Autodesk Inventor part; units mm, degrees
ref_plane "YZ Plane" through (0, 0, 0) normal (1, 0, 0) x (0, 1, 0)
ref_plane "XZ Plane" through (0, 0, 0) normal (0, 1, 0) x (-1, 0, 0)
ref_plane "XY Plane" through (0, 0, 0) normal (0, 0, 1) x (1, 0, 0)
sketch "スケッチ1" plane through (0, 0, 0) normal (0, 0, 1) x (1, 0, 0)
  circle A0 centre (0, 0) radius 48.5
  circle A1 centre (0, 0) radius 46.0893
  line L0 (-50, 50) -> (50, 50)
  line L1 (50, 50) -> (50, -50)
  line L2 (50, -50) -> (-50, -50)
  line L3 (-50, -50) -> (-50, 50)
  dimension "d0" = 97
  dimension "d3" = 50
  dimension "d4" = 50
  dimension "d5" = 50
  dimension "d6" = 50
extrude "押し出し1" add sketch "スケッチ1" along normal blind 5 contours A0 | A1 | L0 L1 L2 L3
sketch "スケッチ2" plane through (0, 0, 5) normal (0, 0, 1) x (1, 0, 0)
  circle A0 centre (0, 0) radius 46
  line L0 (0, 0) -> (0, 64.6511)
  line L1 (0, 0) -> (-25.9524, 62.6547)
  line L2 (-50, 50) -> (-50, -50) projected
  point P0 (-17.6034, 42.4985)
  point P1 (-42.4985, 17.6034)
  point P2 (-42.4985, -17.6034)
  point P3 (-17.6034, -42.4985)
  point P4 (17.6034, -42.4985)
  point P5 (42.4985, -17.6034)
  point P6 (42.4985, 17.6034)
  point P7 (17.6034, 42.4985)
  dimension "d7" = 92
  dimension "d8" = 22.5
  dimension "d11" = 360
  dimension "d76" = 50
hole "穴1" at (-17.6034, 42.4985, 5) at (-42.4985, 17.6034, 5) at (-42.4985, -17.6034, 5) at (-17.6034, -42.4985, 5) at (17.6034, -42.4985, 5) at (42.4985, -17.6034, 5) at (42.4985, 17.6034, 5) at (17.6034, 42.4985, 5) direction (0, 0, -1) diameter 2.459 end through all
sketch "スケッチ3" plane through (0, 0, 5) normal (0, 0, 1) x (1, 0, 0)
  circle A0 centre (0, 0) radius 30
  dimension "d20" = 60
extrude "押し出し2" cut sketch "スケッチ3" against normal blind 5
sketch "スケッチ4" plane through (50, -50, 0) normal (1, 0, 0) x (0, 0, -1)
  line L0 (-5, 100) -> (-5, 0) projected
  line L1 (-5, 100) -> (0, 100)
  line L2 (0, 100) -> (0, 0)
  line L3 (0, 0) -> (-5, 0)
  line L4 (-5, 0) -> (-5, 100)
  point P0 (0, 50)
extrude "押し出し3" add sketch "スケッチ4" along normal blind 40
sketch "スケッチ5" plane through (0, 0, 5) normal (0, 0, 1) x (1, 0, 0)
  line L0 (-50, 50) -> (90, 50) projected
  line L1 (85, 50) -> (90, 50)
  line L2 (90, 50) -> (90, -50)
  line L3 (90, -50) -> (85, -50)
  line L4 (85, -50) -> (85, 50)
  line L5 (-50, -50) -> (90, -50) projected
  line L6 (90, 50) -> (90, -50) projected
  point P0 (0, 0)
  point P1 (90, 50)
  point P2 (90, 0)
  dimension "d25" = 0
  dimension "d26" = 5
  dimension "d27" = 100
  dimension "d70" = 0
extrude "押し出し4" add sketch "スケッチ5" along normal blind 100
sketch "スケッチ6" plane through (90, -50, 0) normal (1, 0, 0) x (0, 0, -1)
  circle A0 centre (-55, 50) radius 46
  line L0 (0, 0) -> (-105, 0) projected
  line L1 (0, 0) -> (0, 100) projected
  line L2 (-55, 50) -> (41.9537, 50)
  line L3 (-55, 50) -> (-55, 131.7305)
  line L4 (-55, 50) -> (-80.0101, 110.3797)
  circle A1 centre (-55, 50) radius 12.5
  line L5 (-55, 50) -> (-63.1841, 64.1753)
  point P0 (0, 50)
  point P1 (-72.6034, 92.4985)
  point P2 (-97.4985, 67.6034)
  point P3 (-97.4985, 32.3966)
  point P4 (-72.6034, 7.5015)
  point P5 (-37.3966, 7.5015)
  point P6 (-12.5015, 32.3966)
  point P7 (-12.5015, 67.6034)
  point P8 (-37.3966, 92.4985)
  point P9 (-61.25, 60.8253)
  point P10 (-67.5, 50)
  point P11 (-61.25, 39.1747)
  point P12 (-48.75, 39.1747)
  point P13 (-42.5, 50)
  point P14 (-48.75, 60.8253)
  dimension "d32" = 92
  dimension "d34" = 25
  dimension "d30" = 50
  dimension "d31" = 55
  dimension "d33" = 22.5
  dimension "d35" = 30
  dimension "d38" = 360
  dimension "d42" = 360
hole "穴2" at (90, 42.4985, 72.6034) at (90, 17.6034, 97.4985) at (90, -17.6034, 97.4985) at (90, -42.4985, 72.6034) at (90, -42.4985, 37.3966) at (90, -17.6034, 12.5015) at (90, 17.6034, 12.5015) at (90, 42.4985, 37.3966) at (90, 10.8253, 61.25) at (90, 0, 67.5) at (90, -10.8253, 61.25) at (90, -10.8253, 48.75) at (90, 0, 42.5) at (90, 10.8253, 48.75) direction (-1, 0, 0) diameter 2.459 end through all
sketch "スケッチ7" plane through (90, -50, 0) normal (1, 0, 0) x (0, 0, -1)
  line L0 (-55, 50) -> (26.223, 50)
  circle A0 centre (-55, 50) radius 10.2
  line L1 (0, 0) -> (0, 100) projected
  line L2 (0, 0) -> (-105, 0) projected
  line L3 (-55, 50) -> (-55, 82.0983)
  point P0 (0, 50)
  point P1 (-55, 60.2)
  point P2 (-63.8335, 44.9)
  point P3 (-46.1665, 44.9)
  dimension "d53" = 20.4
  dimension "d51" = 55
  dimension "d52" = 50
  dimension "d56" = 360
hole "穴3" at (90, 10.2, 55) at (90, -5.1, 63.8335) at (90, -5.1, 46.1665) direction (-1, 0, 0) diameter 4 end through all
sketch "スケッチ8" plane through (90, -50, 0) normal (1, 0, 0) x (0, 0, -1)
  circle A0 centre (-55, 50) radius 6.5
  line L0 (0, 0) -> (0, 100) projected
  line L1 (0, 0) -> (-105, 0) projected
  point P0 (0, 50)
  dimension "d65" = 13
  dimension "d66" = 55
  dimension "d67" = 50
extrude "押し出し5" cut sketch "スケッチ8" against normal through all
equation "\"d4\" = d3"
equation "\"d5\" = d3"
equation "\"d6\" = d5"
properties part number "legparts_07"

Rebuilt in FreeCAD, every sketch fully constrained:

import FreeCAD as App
import Part
import Sketcher

V = App.Vector
Q = App.Units.Quantity

doc = App.newDocument("Part")
body = doc.addObject("PartDesign::Body", "Body")

sketch1 = body.newObject("Sketcher::SketchObject", "Sketch")
sketch1.AttachmentSupport = (doc.getObject("XY_Plane"), [""])
sketch1.MapMode = "FlatFace"
sketch1.addGeometry(Part.LineSegment(V(50, 50, 0), V(-50, 50, 0)), False)
sketch1.addGeometry(Part.LineSegment(V(-50, 50, 0), V(-50, -50, 0)), False)
sketch1.addGeometry(Part.LineSegment(V(-50, -50, 0), V(50, -50, 0)), False)
sketch1.addGeometry(Part.LineSegment(V(50, -50, 0), V(50, 50, 0)), False)
sketch1.addConstraint(Sketcher.Constraint("Coincident", 0, 2, 1, 1))
sketch1.addConstraint(Sketcher.Constraint("Coincident", 1, 2, 2, 1))
sketch1.addConstraint(Sketcher.Constraint("Coincident", 2, 2, 3, 1))
sketch1.addConstraint(Sketcher.Constraint("Coincident", 3, 2, 0, 1))
sketch1.addConstraint(Sketcher.Constraint("Horizontal", 0))
sketch1.addConstraint(Sketcher.Constraint("Vertical", 1))
sketch1.addConstraint(Sketcher.Constraint("Horizontal", 2))
sketch1.addConstraint(Sketcher.Constraint("Vertical", 3))
sketch1.addConstraint(Sketcher.Constraint("Symmetric", 0, 2, 2, 2, -1, 1))
sketch1.addConstraint(Sketcher.Constraint("Equal", 2, 1))
sketch1.addConstraint(Sketcher.Constraint("DistanceX", 0, 2, -1, 1, Q("50 mm")))
pad1 = body.newObject("PartDesign::Pad", "Pad")
pad1.Profile = sketch1
pad1.Length = 5

sketch2 = body.newObject("Sketcher::SketchObject", "Sketch001")
sketch2.AttachmentSupport = (doc.getObject("XY_Plane"), [""])
sketch2.MapMode = "FlatFace"
sketch2.AttachmentOffset = App.Placement(V(0, 0, 5), App.Rotation())
sketch2.addGeometry(Part.Circle(V(-17.6034, 42.4985, 0), V(0, 0, 1), 1.2295), False)
sketch2.addGeometry(Part.Circle(V(-42.4985, 17.6034, 0), V(0, 0, 1), 1.2295), False)
sketch2.addGeometry(Part.Circle(V(-42.4985, -17.6034, 0), V(0, 0, 1), 1.2295), False)
sketch2.addGeometry(Part.Circle(V(-17.6034, -42.4985, 0), V(0, 0, 1), 1.2295), False)
sketch2.addGeometry(Part.Circle(V(17.6034, -42.4985, 0), V(0, 0, 1), 1.2295), False)
sketch2.addGeometry(Part.Circle(V(42.4985, -17.6034, 0), V(0, 0, 1), 1.2295), False)
sketch2.addGeometry(Part.Circle(V(42.4985, 17.6034, 0), V(0, 0, 1), 1.2295), False)
sketch2.addGeometry(Part.Circle(V(17.6034, 42.4985, 0), V(0, 0, 1), 1.2295), False)
sketch2.addConstraint(Sketcher.Constraint("Equal", 0, 1))
sketch2.addConstraint(Sketcher.Constraint("Equal", 1, 2))
sketch2.addConstraint(Sketcher.Constraint("Equal", 2, 3))
sketch2.addConstraint(Sketcher.Constraint("Equal", 3, 4))
sketch2.addConstraint(Sketcher.Constraint("Equal", 4, 5))
sketch2.addConstraint(Sketcher.Constraint("Equal", 5, 6))
sketch2.addConstraint(Sketcher.Constraint("Equal", 6, 7))
sketch2.addConstraint(Sketcher.Constraint("Symmetric", 0, 3, 4, 3, -1, 1))
sketch2.addConstraint(Sketcher.Constraint("Symmetric", 1, 3, 5, 3, -1, 1))
sketch2.addConstraint(Sketcher.Constraint("Symmetric", 2, 3, 6, 3, -1, 1))
sketch2.addConstraint(Sketcher.Constraint("Symmetric", 3, 3, 7, 3, -1, 1))
sketch2.addConstraint(Sketcher.Constraint("Symmetric", 3, 3, 4, 3, -2))
sketch2.addConstraint(Sketcher.Constraint("Symmetric", 2, 3, 5, 3, -2))
sketch2.addConstraint(Sketcher.Constraint("Diameter", 0, Q("2.459 mm")))
sketch2.addConstraint(Sketcher.Constraint("DistanceX", 1, 3, 0, 3, Q("24.895 mm")))
sketch2.addConstraint(Sketcher.Constraint("DistanceY", 1, 3, 0, 3, Q("24.895 mm")))
sketch2.addConstraint(Sketcher.Constraint("DistanceY", 2, 3, 0, 3, Q("60.102 mm")))
sketch2.addConstraint(Sketcher.Constraint("DistanceX", 2, 3, 4, 3, Q("60.102 mm")))
doc.recompute()
hole = body.newObject("PartDesign::Hole", "Hole")
hole.Profile = sketch2
hole.ThreadType = "None"
hole.Diameter = 2.459
hole.DepthType = "ThroughAll"

sketch3 = body.newObject("Sketcher::SketchObject", "Sketch002")
sketch3.AttachmentSupport = (doc.getObject("XY_Plane"), [""])
sketch3.MapMode = "FlatFace"
sketch3.AttachmentOffset = App.Placement(V(0, 0, 5), App.Rotation())
sketch3.addGeometry(Part.Circle(V(0, 0, 0), V(0, 0, 1), 30), False)
sketch3.addConstraint(Sketcher.Constraint("Coincident", 0, 3, -1, 1))
sketch3.addConstraint(Sketcher.Constraint("Diameter", 0, Q("60 mm")))
pocket1 = body.newObject("PartDesign::Pocket", "Pocket")
pocket1.Profile = sketch3
pocket1.Length = 5

sketch4 = body.newObject("Sketcher::SketchObject", "Sketch003")
sketch4.AttachmentSupport = (doc.getObject("YZ_Plane"), [""])
sketch4.MapMode = "FlatFace"
sketch4.AttachmentOffset = App.Placement(V(0, 0, 50), App.Rotation())
sketch4.addGeometry(Part.LineSegment(V(50, 0, 0), V(50, 5, 0)), False)
sketch4.addGeometry(Part.LineSegment(V(50, 5, 0), V(-50, 5, 0)), False)
sketch4.addGeometry(Part.LineSegment(V(-50, 5, 0), V(-50, 0, 0)), False)
sketch4.addGeometry(Part.LineSegment(V(-50, 0, 0), V(50, 0, 0)), False)
sketch4.addConstraint(Sketcher.Constraint("Coincident", 0, 2, 1, 1))
sketch4.addConstraint(Sketcher.Constraint("Coincident", 1, 2, 2, 1))
sketch4.addConstraint(Sketcher.Constraint("Coincident", 2, 2, 3, 1))
sketch4.addConstraint(Sketcher.Constraint("Coincident", 3, 2, 0, 1))
sketch4.addConstraint(Sketcher.Constraint("Vertical", 0))
sketch4.addConstraint(Sketcher.Constraint("Horizontal", 1))
sketch4.addConstraint(Sketcher.Constraint("Vertical", 2))
sketch4.addConstraint(Sketcher.Constraint("Horizontal", 3))
sketch4.addConstraint(Sketcher.Constraint("Symmetric", 2, 2, 3, 2, -1, 1))
sketch4.addConstraint(Sketcher.Constraint("DistanceX", 1, 2, 1, 1, Q("100 mm")))
sketch4.addConstraint(Sketcher.Constraint("DistanceY", 0, 1, 0, 2, Q("5 mm")))
pad2 = body.newObject("PartDesign::Pad", "Pad001")
pad2.Profile = sketch4
pad2.Length = 40

sketch5 = body.newObject("Sketcher::SketchObject", "Sketch004")
sketch5.AttachmentSupport = (doc.getObject("XY_Plane"), [""])
sketch5.MapMode = "FlatFace"
sketch5.AttachmentOffset = App.Placement(V(0, 0, 5), App.Rotation())
sketch5.addGeometry(Part.LineSegment(V(90, 50, 0), V(85, 50, 0)), False)
sketch5.addGeometry(Part.LineSegment(V(85, 50, 0), V(85, -50, 0)), False)
sketch5.addGeometry(Part.LineSegment(V(85, -50, 0), V(90, -50, 0)), False)
sketch5.addGeometry(Part.LineSegment(V(90, -50, 0), V(90, 50, 0)), False)
sketch5.addConstraint(Sketcher.Constraint("Coincident", 0, 2, 1, 1))
sketch5.addConstraint(Sketcher.Constraint("Coincident", 1, 2, 2, 1))
sketch5.addConstraint(Sketcher.Constraint("Coincident", 2, 2, 3, 1))
sketch5.addConstraint(Sketcher.Constraint("Coincident", 3, 2, 0, 1))
sketch5.addConstraint(Sketcher.Constraint("Horizontal", 0))
sketch5.addConstraint(Sketcher.Constraint("Vertical", 1))
sketch5.addConstraint(Sketcher.Constraint("Horizontal", 2))
sketch5.addConstraint(Sketcher.Constraint("Vertical", 3))
sketch5.addConstraint(Sketcher.Constraint("DistanceX", 0, 2, 0, 1, Q("5 mm")))
sketch5.addConstraint(Sketcher.Constraint("DistanceY", 1, 2, 1, 1, Q("100 mm")))
sketch5.addConstraint(Sketcher.Constraint("DistanceX", -1, 1, 0, 2, Q("85 mm")))
sketch5.addConstraint(Sketcher.Constraint("DistanceY", -1, 1, 0, 2, Q("50 mm")))
pad3 = body.newObject("PartDesign::Pad", "Pad002")
pad3.Profile = sketch5
pad3.Length = 100

sketch6 = body.newObject("Sketcher::SketchObject", "Sketch005")
sketch6.AttachmentSupport = (doc.getObject("YZ_Plane"), [""])
sketch6.MapMode = "FlatFace"
sketch6.AttachmentOffset = App.Placement(V(0, 0, 90), App.Rotation())
sketch6.addGeometry(Part.Circle(V(42.4985, 72.6034, 0), V(0, 0, 1), 1.2295), False)
sketch6.addGeometry(Part.Circle(V(17.6034, 97.4985, 0), V(0, 0, 1), 1.2295), False)
sketch6.addGeometry(Part.Circle(V(-17.6034, 97.4985, 0), V(0, 0, 1), 1.2295), False)
sketch6.addGeometry(Part.Circle(V(-42.4985, 72.6034, 0), V(0, 0, 1), 1.2295), False)
sketch6.addGeometry(Part.Circle(V(-42.4985, 37.3966, 0), V(0, 0, 1), 1.2295), False)
sketch6.addGeometry(Part.Circle(V(-17.6034, 12.5015, 0), V(0, 0, 1), 1.2295), False)
sketch6.addGeometry(Part.Circle(V(17.6034, 12.5015, 0), V(0, 0, 1), 1.2295), False)
sketch6.addGeometry(Part.Circle(V(42.4985, 37.3966, 0), V(0, 0, 1), 1.2295), False)
sketch6.addGeometry(Part.Circle(V(10.8253, 61.25, 0), V(0, 0, 1), 1.2295), False)
sketch6.addGeometry(Part.Circle(V(0, 67.5, 0), V(0, 0, 1), 1.2295), False)
sketch6.addGeometry(Part.Circle(V(-10.8253, 61.25, 0), V(0, 0, 1), 1.2295), False)
sketch6.addGeometry(Part.Circle(V(-10.8253, 48.75, 0), V(0, 0, 1), 1.2295), False)
sketch6.addGeometry(Part.Circle(V(0, 42.5, 0), V(0, 0, 1), 1.2295), False)
sketch6.addGeometry(Part.Circle(V(10.8253, 48.75, 0), V(0, 0, 1), 1.2295), False)
sketch6.addConstraint(Sketcher.Constraint("Equal", 0, 1))
sketch6.addConstraint(Sketcher.Constraint("Equal", 1, 2))
sketch6.addConstraint(Sketcher.Constraint("Equal", 2, 3))
sketch6.addConstraint(Sketcher.Constraint("Equal", 3, 4))
sketch6.addConstraint(Sketcher.Constraint("Equal", 4, 5))
sketch6.addConstraint(Sketcher.Constraint("Equal", 5, 6))
sketch6.addConstraint(Sketcher.Constraint("Equal", 6, 7))
sketch6.addConstraint(Sketcher.Constraint("Equal", 7, 8))
sketch6.addConstraint(Sketcher.Constraint("Equal", 8, 9))
sketch6.addConstraint(Sketcher.Constraint("Equal", 9, 10))
sketch6.addConstraint(Sketcher.Constraint("Equal", 10, 11))
sketch6.addConstraint(Sketcher.Constraint("Equal", 11, 12))
sketch6.addConstraint(Sketcher.Constraint("Equal", 12, 13))
sketch6.addConstraint(Sketcher.Constraint("Symmetric", 1, 3, 2, 3, -2))
sketch6.addConstraint(Sketcher.Constraint("Symmetric", 0, 3, 3, 3, -2))
sketch6.addConstraint(Sketcher.Constraint("Symmetric", 5, 3, 6, 3, -2))
sketch6.addConstraint(Sketcher.Constraint("Symmetric", 4, 3, 7, 3, -2))
sketch6.addConstraint(Sketcher.Constraint("Symmetric", 8, 3, 10, 3, -2))
sketch6.addConstraint(Sketcher.Constraint("Symmetric", 11, 3, 13, 3, -2))
sketch6.addConstraint(Sketcher.Constraint("PointOnObject", 9, 3, -2))
sketch6.addConstraint(Sketcher.Constraint("PointOnObject", 12, 3, -2))
sketch6.addConstraint(Sketcher.Constraint("Vertical", 3, 3, 4, 3))
sketch6.addConstraint(Sketcher.Constraint("Vertical", 2, 3, 5, 3))
sketch6.addConstraint(Sketcher.Constraint("Vertical", 10, 3, 11, 3))
sketch6.addConstraint(Sketcher.Constraint("Diameter", 0, Q("2.459 mm")))
sketch6.addConstraint(Sketcher.Constraint("DistanceY", 12, 3, 9, 3, Q("25 mm")))
sketch6.addConstraint(Sketcher.Constraint("DistanceY", -1, 1, 9, 3, Q("67.5 mm")))
sketch6.addConstraint(Sketcher.Constraint("DistanceY", 11, 3, 10, 3, Q("12.5 mm")))
sketch6.addConstraint(Sketcher.Constraint("DistanceY", -1, 1, 8, 3, Q("61.25 mm")))
sketch6.addConstraint(Sketcher.Constraint("DistanceX", 1, 3, 0, 3, Q("24.895 mm")))
sketch6.addConstraint(Sketcher.Constraint("DistanceY", 0, 3, 1, 3, Q("24.895 mm")))
sketch6.addConstraint(Sketcher.Constraint("DistanceX", 2, 3, 0, 3, Q("60.102 mm")))
sketch6.addConstraint(Sketcher.Constraint("DistanceY", 4, 3, 2, 3, Q("60.102 mm")))
sketch6.addConstraint(Sketcher.Constraint("DistanceY", 5, 3, 4, 3, Q("24.895 mm")))
sketch6.addConstraint(Sketcher.Constraint("DistanceX", 8, 3, 1, 3, Q("6.778 mm")))
sketch6.addConstraint(Sketcher.Constraint("DistanceY", -1, 1, 0, 3, Q("72.6034 mm")))
doc.recompute()
hole2 = body.newObject("PartDesign::Hole", "Hole001")
hole2.Profile = sketch6
hole2.ThreadType = "None"
hole2.Diameter = 2.459
hole2.DepthType = "ThroughAll"

sketch7 = body.newObject("Sketcher::SketchObject", "Sketch006")
sketch7.AttachmentSupport = (doc.getObject("YZ_Plane"), [""])
sketch7.MapMode = "FlatFace"
sketch7.AttachmentOffset = App.Placement(V(0, 0, 90), App.Rotation())
sketch7.addGeometry(Part.Circle(V(10.2, 55, 0), V(0, 0, 1), 2), False)
sketch7.addGeometry(Part.Circle(V(-5.1, 63.8335, 0), V(0, 0, 1), 2), False)
sketch7.addGeometry(Part.Circle(V(-5.1, 46.1665, 0), V(0, 0, 1), 2), False)
sketch7.addConstraint(Sketcher.Constraint("Equal", 0, 1))
sketch7.addConstraint(Sketcher.Constraint("Equal", 1, 2))
sketch7.addConstraint(Sketcher.Constraint("Vertical", 1, 3, 2, 3))
sketch7.addConstraint(Sketcher.Constraint("Diameter", 0, Q("4 mm")))
sketch7.addConstraint(Sketcher.Constraint("DistanceY", -1, 1, 0, 3, Q("55 mm")))
sketch7.addConstraint(Sketcher.Constraint("DistanceX", -1, 1, 0, 3, Q("10.2 mm")))
sketch7.addConstraint(Sketcher.Constraint("DistanceX", 1, 3, -1, 1, Q("5.1 mm")))
sketch7.addConstraint(Sketcher.Constraint("DistanceY", 2, 3, 1, 3, Q("17.667 mm")))
sketch7.addConstraint(Sketcher.Constraint("DistanceY", -1, 1, 1, 3, Q("63.8335 mm")))
doc.recompute()
hole3 = body.newObject("PartDesign::Hole", "Hole002")
hole3.Profile = sketch7
hole3.ThreadType = "None"
hole3.Diameter = 4
hole3.DepthType = "ThroughAll"

sketch8 = body.newObject("Sketcher::SketchObject", "Sketch007")
sketch8.AttachmentSupport = (doc.getObject("YZ_Plane"), [""])
sketch8.MapMode = "FlatFace"
sketch8.AttachmentOffset = App.Placement(V(0, 0, 90), App.Rotation())
sketch8.addGeometry(Part.Circle(V(0, 55, 0), V(0, 0, 1), 6.5), False)
sketch8.addConstraint(Sketcher.Constraint("PointOnObject", 0, 3, -2))
sketch8.addConstraint(Sketcher.Constraint("Diameter", 0, Q("13 mm")))
sketch8.addConstraint(Sketcher.Constraint("DistanceY", -1, 1, 0, 3, Q("55 mm")))
pocket2 = body.newObject("PartDesign::Pocket", "Pocket001")
pocket2.Profile = sketch8
pocket2.Type = "ThroughAll"

doc.recompute()
